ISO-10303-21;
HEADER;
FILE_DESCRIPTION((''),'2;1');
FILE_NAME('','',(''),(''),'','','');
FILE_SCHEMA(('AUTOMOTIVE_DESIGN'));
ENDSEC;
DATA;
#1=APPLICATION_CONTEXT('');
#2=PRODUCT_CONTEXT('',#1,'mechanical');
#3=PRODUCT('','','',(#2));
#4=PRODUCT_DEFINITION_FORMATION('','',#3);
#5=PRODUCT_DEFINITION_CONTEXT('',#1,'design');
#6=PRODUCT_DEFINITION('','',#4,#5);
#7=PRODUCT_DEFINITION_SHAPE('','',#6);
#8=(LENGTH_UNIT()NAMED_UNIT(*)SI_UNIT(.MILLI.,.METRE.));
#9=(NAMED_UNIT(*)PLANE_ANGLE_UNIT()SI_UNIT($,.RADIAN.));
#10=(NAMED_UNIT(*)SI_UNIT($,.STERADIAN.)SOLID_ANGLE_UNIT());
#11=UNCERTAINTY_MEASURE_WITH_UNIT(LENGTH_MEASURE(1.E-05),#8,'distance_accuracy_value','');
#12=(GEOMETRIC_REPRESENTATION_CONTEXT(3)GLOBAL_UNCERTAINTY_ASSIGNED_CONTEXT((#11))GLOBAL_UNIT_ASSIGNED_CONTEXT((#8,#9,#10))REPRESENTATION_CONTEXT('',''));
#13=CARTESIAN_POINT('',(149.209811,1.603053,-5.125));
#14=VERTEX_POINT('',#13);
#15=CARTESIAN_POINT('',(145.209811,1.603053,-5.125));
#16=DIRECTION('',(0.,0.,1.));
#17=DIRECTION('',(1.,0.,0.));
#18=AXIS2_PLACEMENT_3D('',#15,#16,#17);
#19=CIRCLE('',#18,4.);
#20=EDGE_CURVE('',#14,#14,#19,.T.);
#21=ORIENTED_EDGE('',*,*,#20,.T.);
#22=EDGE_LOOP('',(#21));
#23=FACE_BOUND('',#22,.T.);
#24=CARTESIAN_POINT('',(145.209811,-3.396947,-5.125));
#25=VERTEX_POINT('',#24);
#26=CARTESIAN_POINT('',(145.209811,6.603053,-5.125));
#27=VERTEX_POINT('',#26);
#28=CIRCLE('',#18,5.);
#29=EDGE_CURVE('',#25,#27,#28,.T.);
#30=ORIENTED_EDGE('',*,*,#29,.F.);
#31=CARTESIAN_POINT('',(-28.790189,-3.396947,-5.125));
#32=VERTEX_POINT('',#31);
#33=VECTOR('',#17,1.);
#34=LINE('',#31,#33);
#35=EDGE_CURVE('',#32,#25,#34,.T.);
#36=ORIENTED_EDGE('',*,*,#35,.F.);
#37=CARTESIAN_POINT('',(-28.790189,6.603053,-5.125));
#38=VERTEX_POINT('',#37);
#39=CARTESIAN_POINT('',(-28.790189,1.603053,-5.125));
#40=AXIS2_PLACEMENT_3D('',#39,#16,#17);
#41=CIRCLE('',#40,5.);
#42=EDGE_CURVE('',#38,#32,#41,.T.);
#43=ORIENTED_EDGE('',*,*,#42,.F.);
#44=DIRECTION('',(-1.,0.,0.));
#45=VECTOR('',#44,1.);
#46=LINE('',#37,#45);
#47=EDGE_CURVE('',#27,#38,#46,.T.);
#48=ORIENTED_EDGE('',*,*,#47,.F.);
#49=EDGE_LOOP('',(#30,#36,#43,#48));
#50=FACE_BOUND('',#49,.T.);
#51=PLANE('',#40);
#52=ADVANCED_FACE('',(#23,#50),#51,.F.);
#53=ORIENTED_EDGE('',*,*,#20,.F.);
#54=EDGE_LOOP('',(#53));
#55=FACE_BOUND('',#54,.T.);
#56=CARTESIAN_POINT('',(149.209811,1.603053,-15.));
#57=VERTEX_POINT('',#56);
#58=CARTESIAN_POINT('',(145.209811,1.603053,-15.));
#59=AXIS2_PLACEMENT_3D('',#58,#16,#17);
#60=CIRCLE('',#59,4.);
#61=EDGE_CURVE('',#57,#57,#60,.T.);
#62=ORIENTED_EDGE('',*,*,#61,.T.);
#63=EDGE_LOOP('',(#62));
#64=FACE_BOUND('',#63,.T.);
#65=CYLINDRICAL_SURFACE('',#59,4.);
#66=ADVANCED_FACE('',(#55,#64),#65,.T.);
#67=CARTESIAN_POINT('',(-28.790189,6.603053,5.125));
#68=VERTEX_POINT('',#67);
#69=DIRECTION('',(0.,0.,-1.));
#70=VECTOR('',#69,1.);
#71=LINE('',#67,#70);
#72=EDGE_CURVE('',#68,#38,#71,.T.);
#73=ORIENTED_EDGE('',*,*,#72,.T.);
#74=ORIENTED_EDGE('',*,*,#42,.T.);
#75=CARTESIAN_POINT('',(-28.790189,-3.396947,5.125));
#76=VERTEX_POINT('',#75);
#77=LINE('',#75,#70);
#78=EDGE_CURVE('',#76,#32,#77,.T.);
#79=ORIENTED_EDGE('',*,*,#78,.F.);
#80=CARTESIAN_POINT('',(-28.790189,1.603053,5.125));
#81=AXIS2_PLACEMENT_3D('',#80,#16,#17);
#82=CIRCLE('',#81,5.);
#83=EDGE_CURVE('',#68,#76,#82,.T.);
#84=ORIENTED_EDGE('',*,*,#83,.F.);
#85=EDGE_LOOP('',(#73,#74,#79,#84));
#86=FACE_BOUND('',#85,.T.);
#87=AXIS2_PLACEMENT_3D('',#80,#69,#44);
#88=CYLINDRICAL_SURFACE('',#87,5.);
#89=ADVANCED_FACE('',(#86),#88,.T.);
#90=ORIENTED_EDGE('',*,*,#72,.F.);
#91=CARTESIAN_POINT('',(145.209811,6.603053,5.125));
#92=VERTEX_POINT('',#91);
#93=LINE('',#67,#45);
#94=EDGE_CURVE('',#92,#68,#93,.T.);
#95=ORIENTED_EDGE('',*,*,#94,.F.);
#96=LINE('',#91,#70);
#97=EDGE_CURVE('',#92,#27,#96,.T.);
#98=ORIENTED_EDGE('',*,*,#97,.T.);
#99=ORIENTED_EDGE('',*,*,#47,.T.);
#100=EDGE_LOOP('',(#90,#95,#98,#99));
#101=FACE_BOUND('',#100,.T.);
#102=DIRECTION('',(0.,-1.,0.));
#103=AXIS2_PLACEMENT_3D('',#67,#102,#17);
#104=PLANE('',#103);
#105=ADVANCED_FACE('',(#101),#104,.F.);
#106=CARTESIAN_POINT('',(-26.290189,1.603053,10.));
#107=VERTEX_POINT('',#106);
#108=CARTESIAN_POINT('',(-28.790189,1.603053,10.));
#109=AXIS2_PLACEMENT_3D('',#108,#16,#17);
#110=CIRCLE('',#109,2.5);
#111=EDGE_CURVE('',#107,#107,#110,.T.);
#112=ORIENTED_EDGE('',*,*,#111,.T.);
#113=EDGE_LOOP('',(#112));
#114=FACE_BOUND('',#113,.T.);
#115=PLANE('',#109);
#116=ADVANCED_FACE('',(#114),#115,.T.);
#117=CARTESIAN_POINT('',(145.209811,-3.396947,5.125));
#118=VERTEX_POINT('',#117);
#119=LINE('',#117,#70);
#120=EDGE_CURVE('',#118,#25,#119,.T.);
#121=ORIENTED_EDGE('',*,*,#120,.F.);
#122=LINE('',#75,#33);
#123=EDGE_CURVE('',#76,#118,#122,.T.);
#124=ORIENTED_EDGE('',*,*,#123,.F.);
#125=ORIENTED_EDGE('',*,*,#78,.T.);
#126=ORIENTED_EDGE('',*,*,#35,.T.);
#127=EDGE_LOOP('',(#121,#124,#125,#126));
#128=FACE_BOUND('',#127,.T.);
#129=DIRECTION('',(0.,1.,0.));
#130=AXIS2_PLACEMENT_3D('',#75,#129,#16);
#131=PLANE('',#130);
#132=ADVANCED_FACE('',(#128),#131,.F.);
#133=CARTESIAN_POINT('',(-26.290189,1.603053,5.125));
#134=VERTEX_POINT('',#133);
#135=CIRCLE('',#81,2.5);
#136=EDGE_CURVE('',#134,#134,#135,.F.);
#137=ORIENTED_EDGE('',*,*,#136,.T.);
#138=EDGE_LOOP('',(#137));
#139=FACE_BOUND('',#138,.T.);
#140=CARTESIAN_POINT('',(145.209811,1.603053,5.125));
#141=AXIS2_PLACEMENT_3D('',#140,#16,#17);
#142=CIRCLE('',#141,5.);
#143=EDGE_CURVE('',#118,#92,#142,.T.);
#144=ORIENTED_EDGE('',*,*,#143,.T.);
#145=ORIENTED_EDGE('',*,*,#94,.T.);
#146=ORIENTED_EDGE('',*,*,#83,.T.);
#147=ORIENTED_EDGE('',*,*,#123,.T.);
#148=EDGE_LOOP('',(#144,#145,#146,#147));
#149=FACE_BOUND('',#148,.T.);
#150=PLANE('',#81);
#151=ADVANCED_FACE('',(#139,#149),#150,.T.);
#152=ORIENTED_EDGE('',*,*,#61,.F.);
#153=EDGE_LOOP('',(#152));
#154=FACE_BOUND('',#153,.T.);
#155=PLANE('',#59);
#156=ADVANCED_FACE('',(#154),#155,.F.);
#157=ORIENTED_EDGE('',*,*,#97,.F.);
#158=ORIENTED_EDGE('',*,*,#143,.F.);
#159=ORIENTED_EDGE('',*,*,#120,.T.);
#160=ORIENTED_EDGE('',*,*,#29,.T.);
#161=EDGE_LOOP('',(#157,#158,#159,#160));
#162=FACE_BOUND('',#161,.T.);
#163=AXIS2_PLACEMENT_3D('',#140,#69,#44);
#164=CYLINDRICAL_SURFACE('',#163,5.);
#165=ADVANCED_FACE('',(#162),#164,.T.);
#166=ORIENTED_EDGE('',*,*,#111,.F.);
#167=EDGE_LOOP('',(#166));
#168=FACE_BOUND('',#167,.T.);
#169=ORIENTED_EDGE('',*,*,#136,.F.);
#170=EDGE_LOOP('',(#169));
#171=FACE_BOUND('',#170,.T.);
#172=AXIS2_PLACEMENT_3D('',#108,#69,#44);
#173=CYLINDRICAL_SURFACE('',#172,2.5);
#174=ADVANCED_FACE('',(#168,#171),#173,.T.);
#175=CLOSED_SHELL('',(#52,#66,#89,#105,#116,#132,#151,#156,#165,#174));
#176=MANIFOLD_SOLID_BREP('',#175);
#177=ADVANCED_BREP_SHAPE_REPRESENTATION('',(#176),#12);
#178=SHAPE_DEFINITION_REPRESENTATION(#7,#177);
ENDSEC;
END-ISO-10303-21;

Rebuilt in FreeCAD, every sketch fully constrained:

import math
import FreeCAD as App
import Part
import Sketcher
from FreeCAD import Vector

doc = App.newDocument("Part")
body = doc.addObject("PartDesign::Body", "Body")

# Sketch on XY plane
sketch1 = body.newObject("Sketcher::SketchObject", "Sketch")
sketch1.AttachmentSupport = (doc.getObject("XY_Plane"), [""])
sketch1.MapMode = "FlatFace"
sketch1.addGeometry([
    Part.LineSegment(Vector(145, 7, 0), Vector(-29, 7, 0)),
    Part.ArcOfCircle(Part.Circle(Vector(-29, 2, 0), Vector(0, 0, 1), 5), math.radians(90), math.radians(270)),
    Part.LineSegment(Vector(-29, -3, 0), Vector(145, -3, 0)),
    Part.ArcOfCircle(Part.Circle(Vector(145, 2, 0), Vector(0, 0, 1), 5), math.radians(-90), math.radians(90)),
], False)
sketch1.addConstraint([
    Sketcher.Constraint("Tangent", 0, 2, 1, 1),
    Sketcher.Constraint("Tangent", 1, 2, 2, 1),
    Sketcher.Constraint("Tangent", 2, 2, 3, 1),
    Sketcher.Constraint("Tangent", 3, 2, 0, 1),
    Sketcher.Constraint("Horizontal", 0),
    Sketcher.Constraint("Horizontal", 2),
    Sketcher.Constraint("Radius", 1, 5.0),
    Sketcher.Constraint("DistanceX", 0, 2, 0, 1, 174.0),
    Sketcher.Constraint("DistanceX", 1, 3, -1, 1, 28.790189),
    Sketcher.Constraint("DistanceY", -1, 1, 1, 3, 1.603053),
])
pad1 = body.newObject("PartDesign::Pad", "Pad")
pad1.Profile = sketch1
pad1.Length = 10.25
pad1.Midplane = True

# Sketch on XY plane
sketch2 = body.newObject("Sketcher::SketchObject", "Sketch001")
sketch2.AttachmentSupport = (doc.getObject("XY_Plane"), [""])
sketch2.MapMode = "FlatFace"
sketch2.addGeometry(Part.Circle(Vector(-28.8, 1.6, 0), Vector(0, 0, 1), 2.5), False)
sketch2.addConstraint([
    Sketcher.Constraint("Diameter", 0, 5.0),
    Sketcher.Constraint("DistanceX", 0, 3, -1, 1, 28.790189),
    Sketcher.Constraint("DistanceY", -1, 1, 0, 3, 1.603053),
])
pad2 = body.newObject("PartDesign::Pad", "Pad001")
pad2.Profile = sketch2
pad2.Length = 10

# Sketch on XY plane
sketch3 = body.newObject("Sketcher::SketchObject", "Sketch002")
sketch3.AttachmentSupport = (doc.getObject("XY_Plane"), [""])
sketch3.MapMode = "FlatFace"
sketch3.addGeometry(Part.Circle(Vector(145.2, 1.6, 0), Vector(0, 0, 1), 4), False)
sketch3.addConstraint([
    Sketcher.Constraint("Diameter", 0, 8.0),
    Sketcher.Constraint("DistanceX", -1, 1, 0, 3, 145.209811),
    Sketcher.Constraint("DistanceY", -1, 1, 0, 3, 1.603053),
])
pad3 = body.newObject("PartDesign::Pad", "Pad002")
pad3.Profile = sketch3
pad3.Length = 15
pad3.Reversed = True

doc.recompute()
